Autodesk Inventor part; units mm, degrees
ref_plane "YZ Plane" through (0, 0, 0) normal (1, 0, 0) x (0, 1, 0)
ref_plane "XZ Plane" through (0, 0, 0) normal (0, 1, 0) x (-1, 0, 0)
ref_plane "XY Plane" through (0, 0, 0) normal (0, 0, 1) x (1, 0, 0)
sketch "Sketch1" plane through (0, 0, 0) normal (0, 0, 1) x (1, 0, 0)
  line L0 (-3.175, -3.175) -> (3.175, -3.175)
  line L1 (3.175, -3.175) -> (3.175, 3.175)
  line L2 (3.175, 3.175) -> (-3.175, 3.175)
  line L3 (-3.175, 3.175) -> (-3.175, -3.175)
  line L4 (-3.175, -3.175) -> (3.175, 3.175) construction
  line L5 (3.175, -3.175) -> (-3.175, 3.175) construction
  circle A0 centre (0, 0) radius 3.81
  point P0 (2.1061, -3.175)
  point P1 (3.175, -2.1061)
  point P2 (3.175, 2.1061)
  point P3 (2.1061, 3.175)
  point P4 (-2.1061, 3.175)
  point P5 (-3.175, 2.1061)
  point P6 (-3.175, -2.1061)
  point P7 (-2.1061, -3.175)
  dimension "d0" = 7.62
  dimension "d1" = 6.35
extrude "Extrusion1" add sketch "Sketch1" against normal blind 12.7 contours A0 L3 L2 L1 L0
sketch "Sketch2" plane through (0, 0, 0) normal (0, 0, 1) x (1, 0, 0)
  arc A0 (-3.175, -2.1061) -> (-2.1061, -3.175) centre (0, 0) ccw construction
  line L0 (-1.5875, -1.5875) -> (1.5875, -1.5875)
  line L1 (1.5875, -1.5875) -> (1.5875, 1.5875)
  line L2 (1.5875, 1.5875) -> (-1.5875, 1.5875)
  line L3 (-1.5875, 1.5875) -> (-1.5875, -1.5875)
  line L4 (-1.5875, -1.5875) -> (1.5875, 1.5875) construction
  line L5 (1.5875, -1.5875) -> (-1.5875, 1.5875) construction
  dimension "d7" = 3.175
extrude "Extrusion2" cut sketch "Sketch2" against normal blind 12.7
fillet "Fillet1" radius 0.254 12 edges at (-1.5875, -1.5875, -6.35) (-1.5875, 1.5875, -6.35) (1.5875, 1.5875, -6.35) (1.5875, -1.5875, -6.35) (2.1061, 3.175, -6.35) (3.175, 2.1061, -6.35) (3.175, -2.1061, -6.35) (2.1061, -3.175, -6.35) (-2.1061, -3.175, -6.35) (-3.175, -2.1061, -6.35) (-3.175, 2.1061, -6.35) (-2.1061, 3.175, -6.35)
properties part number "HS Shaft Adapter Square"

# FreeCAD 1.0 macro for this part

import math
import FreeCAD as App
import Part
import Sketcher

V = App.Vector
Q = App.Units.Quantity


def edges_at(feature, points):
    """Names of the edges that pass closest to the given points."""
    edges = feature.Shape.Edges
    near = lambda p: min(range(len(edges)), key=lambda i: edges[i].distToShape(Part.Vertex(*p))[0])
    return sorted({f"Edge{near(p) + 1}" for p in points})


def add_polygon(sketch, points):
    """Adds a closed chain of lines whose ends are joined by coincident constraints."""
    first, n = sketch.GeometryCount, len(points)
    for a, b in zip(points, points[1:] + points[:1]):
        sketch.addGeometry(Part.LineSegment(App.Vector(*a, 0), App.Vector(*b, 0)), False)
    for i in range(n):
        sketch.addConstraint(Sketcher.Constraint("Coincident", first + i, 2, first + (i + 1) % n, 1))

doc = App.newDocument("Part")
body = doc.addObject("PartDesign::Body", "Body")

# Sketch on XY plane
sketch1 = body.newObject("Sketcher::SketchObject", "Sketch")
sketch1.AttachmentSupport = (doc.getObject("XY_Plane"), [""])
sketch1.MapMode = "FlatFace"
sketch1.addGeometry([
    Part.ArcOfCircle(Part.Circle(V(0, 0, 0), V(0, 0, 1), 3.8), math.radians(-146), math.radians(-124)),  # 0
    Part.LineSegment(V(-2.1, -3.2, 0), V(2.1, -3.2, 0)),  # 1
    Part.ArcOfCircle(Part.Circle(V(0, 0, 0), V(0, 0, 1), 3.8), math.radians(-56), math.radians(-34)),  # 2
    Part.LineSegment(V(3.2, -2.1, 0), V(3.2, 2.1, 0)),  # 3
    Part.ArcOfCircle(Part.Circle(V(0, 0, 0), V(0, 0, 1), 3.8), math.radians(34), math.radians(56)),  # 4
    Part.LineSegment(V(2.1, 3.2, 0), V(-2.1, 3.2, 0)),  # 5
    Part.ArcOfCircle(Part.Circle(V(0, 0, 0), V(0, 0, 1), 3.8), math.radians(124), math.radians(146)),  # 6
    Part.LineSegment(V(-3.2, 2.1, 0), V(-3.2, -2.1, 0)),  # 7
], False)
sketch1.addConstraint([
    Sketcher.Constraint("Coincident", 0, 2, 1, 1),
    Sketcher.Constraint("Coincident", 1, 2, 2, 1),
    Sketcher.Constraint("Coincident", 2, 2, 3, 1),
    Sketcher.Constraint("Coincident", 3, 2, 4, 1),
    Sketcher.Constraint("Coincident", 4, 2, 5, 1),
    Sketcher.Constraint("Coincident", 5, 2, 6, 1),
    Sketcher.Constraint("Coincident", 6, 2, 7, 1),
    Sketcher.Constraint("Coincident", 7, 2, 0, 1),
    Sketcher.Constraint("Horizontal", 1),
    Sketcher.Constraint("Vertical", 3),
    Sketcher.Constraint("Horizontal", 5),
    Sketcher.Constraint("Vertical", 7),
    Sketcher.Constraint("Coincident", 0, 3, -1, 1),
    Sketcher.Constraint("Coincident", 2, 3, -1, 1),
    Sketcher.Constraint("Coincident", 4, 3, -1, 1),
    Sketcher.Constraint("Coincident", 6, 3, -1, 1),
    Sketcher.Constraint("Equal", 0, 2),
    Sketcher.Constraint("Equal", 2, 4),
    Sketcher.Constraint("Equal", 4, 6),
    Sketcher.Constraint("Horizontal", 3, 2, 6, 2),
    Sketcher.Constraint("Vertical", 1, 2, 4, 2),
    Sketcher.Constraint("Equal", 5, 3),
    Sketcher.Constraint("Radius", 0, Q("0.15 in")),
    Sketcher.Constraint("DistanceY", 0, 2, -1, 1, Q("0.125 in")),
])
pad1 = body.newObject("PartDesign::Pad", "Pad")
pad1.Profile = sketch1
pad1.Length = Q("0.5 in")
pad1.Reversed = True

# Sketch on XY plane
sketch2 = body.newObject("Sketcher::SketchObject", "Sketch001")
sketch2.AttachmentSupport = (doc.getObject("XY_Plane"), [""])
sketch2.MapMode = "FlatFace"
add_polygon(sketch2, [(-1.6, 1.6), (-1.6, -1.6), (1.6, -1.6), (1.6, 1.6)])  # lines 0-3
sketch2.addConstraint([
    Sketcher.Constraint("Vertical", 0),
    Sketcher.Constraint("Horizontal", 1),
    Sketcher.Constraint("Vertical", 2),
    Sketcher.Constraint("Horizontal", 3),
    Sketcher.Constraint("Symmetric", 0, 2, 2, 2, -1, 1),
    Sketcher.Constraint("Equal", 3, 0),
    Sketcher.Constraint("DistanceX", 1, 1, 1, 2, Q("0.125 in")),
])
pocket1 = body.newObject("PartDesign::Pocket", "Pocket")
pocket1.Profile = sketch2
pocket1.Length = Q("0.5 in")
doc.recompute()

fillet = body.newObject("PartDesign::Fillet", "Fillet")
fillet.Base = (pocket1, edges_at(pocket1, [
    (-1.587, -1.587, -6.35),
    (-1.587, 1.587, -6.35),
    (1.587, 1.587, -6.35),
    (1.587, -1.587, -6.35),
    (2.106, 3.175, -6.35),
    (3.175, 2.106, -6.35),
    (3.175, -2.106, -6.35),
    (2.106, -3.175, -6.35),
    (-2.106, -3.175, -6.35),
    (-3.175, -2.106, -6.35),
    (-3.175, 2.106, -6.35),
    (-2.106, 3.175, -6.35),
]))
fillet.Radius = Q("0.01 in")

doc.recompute()
